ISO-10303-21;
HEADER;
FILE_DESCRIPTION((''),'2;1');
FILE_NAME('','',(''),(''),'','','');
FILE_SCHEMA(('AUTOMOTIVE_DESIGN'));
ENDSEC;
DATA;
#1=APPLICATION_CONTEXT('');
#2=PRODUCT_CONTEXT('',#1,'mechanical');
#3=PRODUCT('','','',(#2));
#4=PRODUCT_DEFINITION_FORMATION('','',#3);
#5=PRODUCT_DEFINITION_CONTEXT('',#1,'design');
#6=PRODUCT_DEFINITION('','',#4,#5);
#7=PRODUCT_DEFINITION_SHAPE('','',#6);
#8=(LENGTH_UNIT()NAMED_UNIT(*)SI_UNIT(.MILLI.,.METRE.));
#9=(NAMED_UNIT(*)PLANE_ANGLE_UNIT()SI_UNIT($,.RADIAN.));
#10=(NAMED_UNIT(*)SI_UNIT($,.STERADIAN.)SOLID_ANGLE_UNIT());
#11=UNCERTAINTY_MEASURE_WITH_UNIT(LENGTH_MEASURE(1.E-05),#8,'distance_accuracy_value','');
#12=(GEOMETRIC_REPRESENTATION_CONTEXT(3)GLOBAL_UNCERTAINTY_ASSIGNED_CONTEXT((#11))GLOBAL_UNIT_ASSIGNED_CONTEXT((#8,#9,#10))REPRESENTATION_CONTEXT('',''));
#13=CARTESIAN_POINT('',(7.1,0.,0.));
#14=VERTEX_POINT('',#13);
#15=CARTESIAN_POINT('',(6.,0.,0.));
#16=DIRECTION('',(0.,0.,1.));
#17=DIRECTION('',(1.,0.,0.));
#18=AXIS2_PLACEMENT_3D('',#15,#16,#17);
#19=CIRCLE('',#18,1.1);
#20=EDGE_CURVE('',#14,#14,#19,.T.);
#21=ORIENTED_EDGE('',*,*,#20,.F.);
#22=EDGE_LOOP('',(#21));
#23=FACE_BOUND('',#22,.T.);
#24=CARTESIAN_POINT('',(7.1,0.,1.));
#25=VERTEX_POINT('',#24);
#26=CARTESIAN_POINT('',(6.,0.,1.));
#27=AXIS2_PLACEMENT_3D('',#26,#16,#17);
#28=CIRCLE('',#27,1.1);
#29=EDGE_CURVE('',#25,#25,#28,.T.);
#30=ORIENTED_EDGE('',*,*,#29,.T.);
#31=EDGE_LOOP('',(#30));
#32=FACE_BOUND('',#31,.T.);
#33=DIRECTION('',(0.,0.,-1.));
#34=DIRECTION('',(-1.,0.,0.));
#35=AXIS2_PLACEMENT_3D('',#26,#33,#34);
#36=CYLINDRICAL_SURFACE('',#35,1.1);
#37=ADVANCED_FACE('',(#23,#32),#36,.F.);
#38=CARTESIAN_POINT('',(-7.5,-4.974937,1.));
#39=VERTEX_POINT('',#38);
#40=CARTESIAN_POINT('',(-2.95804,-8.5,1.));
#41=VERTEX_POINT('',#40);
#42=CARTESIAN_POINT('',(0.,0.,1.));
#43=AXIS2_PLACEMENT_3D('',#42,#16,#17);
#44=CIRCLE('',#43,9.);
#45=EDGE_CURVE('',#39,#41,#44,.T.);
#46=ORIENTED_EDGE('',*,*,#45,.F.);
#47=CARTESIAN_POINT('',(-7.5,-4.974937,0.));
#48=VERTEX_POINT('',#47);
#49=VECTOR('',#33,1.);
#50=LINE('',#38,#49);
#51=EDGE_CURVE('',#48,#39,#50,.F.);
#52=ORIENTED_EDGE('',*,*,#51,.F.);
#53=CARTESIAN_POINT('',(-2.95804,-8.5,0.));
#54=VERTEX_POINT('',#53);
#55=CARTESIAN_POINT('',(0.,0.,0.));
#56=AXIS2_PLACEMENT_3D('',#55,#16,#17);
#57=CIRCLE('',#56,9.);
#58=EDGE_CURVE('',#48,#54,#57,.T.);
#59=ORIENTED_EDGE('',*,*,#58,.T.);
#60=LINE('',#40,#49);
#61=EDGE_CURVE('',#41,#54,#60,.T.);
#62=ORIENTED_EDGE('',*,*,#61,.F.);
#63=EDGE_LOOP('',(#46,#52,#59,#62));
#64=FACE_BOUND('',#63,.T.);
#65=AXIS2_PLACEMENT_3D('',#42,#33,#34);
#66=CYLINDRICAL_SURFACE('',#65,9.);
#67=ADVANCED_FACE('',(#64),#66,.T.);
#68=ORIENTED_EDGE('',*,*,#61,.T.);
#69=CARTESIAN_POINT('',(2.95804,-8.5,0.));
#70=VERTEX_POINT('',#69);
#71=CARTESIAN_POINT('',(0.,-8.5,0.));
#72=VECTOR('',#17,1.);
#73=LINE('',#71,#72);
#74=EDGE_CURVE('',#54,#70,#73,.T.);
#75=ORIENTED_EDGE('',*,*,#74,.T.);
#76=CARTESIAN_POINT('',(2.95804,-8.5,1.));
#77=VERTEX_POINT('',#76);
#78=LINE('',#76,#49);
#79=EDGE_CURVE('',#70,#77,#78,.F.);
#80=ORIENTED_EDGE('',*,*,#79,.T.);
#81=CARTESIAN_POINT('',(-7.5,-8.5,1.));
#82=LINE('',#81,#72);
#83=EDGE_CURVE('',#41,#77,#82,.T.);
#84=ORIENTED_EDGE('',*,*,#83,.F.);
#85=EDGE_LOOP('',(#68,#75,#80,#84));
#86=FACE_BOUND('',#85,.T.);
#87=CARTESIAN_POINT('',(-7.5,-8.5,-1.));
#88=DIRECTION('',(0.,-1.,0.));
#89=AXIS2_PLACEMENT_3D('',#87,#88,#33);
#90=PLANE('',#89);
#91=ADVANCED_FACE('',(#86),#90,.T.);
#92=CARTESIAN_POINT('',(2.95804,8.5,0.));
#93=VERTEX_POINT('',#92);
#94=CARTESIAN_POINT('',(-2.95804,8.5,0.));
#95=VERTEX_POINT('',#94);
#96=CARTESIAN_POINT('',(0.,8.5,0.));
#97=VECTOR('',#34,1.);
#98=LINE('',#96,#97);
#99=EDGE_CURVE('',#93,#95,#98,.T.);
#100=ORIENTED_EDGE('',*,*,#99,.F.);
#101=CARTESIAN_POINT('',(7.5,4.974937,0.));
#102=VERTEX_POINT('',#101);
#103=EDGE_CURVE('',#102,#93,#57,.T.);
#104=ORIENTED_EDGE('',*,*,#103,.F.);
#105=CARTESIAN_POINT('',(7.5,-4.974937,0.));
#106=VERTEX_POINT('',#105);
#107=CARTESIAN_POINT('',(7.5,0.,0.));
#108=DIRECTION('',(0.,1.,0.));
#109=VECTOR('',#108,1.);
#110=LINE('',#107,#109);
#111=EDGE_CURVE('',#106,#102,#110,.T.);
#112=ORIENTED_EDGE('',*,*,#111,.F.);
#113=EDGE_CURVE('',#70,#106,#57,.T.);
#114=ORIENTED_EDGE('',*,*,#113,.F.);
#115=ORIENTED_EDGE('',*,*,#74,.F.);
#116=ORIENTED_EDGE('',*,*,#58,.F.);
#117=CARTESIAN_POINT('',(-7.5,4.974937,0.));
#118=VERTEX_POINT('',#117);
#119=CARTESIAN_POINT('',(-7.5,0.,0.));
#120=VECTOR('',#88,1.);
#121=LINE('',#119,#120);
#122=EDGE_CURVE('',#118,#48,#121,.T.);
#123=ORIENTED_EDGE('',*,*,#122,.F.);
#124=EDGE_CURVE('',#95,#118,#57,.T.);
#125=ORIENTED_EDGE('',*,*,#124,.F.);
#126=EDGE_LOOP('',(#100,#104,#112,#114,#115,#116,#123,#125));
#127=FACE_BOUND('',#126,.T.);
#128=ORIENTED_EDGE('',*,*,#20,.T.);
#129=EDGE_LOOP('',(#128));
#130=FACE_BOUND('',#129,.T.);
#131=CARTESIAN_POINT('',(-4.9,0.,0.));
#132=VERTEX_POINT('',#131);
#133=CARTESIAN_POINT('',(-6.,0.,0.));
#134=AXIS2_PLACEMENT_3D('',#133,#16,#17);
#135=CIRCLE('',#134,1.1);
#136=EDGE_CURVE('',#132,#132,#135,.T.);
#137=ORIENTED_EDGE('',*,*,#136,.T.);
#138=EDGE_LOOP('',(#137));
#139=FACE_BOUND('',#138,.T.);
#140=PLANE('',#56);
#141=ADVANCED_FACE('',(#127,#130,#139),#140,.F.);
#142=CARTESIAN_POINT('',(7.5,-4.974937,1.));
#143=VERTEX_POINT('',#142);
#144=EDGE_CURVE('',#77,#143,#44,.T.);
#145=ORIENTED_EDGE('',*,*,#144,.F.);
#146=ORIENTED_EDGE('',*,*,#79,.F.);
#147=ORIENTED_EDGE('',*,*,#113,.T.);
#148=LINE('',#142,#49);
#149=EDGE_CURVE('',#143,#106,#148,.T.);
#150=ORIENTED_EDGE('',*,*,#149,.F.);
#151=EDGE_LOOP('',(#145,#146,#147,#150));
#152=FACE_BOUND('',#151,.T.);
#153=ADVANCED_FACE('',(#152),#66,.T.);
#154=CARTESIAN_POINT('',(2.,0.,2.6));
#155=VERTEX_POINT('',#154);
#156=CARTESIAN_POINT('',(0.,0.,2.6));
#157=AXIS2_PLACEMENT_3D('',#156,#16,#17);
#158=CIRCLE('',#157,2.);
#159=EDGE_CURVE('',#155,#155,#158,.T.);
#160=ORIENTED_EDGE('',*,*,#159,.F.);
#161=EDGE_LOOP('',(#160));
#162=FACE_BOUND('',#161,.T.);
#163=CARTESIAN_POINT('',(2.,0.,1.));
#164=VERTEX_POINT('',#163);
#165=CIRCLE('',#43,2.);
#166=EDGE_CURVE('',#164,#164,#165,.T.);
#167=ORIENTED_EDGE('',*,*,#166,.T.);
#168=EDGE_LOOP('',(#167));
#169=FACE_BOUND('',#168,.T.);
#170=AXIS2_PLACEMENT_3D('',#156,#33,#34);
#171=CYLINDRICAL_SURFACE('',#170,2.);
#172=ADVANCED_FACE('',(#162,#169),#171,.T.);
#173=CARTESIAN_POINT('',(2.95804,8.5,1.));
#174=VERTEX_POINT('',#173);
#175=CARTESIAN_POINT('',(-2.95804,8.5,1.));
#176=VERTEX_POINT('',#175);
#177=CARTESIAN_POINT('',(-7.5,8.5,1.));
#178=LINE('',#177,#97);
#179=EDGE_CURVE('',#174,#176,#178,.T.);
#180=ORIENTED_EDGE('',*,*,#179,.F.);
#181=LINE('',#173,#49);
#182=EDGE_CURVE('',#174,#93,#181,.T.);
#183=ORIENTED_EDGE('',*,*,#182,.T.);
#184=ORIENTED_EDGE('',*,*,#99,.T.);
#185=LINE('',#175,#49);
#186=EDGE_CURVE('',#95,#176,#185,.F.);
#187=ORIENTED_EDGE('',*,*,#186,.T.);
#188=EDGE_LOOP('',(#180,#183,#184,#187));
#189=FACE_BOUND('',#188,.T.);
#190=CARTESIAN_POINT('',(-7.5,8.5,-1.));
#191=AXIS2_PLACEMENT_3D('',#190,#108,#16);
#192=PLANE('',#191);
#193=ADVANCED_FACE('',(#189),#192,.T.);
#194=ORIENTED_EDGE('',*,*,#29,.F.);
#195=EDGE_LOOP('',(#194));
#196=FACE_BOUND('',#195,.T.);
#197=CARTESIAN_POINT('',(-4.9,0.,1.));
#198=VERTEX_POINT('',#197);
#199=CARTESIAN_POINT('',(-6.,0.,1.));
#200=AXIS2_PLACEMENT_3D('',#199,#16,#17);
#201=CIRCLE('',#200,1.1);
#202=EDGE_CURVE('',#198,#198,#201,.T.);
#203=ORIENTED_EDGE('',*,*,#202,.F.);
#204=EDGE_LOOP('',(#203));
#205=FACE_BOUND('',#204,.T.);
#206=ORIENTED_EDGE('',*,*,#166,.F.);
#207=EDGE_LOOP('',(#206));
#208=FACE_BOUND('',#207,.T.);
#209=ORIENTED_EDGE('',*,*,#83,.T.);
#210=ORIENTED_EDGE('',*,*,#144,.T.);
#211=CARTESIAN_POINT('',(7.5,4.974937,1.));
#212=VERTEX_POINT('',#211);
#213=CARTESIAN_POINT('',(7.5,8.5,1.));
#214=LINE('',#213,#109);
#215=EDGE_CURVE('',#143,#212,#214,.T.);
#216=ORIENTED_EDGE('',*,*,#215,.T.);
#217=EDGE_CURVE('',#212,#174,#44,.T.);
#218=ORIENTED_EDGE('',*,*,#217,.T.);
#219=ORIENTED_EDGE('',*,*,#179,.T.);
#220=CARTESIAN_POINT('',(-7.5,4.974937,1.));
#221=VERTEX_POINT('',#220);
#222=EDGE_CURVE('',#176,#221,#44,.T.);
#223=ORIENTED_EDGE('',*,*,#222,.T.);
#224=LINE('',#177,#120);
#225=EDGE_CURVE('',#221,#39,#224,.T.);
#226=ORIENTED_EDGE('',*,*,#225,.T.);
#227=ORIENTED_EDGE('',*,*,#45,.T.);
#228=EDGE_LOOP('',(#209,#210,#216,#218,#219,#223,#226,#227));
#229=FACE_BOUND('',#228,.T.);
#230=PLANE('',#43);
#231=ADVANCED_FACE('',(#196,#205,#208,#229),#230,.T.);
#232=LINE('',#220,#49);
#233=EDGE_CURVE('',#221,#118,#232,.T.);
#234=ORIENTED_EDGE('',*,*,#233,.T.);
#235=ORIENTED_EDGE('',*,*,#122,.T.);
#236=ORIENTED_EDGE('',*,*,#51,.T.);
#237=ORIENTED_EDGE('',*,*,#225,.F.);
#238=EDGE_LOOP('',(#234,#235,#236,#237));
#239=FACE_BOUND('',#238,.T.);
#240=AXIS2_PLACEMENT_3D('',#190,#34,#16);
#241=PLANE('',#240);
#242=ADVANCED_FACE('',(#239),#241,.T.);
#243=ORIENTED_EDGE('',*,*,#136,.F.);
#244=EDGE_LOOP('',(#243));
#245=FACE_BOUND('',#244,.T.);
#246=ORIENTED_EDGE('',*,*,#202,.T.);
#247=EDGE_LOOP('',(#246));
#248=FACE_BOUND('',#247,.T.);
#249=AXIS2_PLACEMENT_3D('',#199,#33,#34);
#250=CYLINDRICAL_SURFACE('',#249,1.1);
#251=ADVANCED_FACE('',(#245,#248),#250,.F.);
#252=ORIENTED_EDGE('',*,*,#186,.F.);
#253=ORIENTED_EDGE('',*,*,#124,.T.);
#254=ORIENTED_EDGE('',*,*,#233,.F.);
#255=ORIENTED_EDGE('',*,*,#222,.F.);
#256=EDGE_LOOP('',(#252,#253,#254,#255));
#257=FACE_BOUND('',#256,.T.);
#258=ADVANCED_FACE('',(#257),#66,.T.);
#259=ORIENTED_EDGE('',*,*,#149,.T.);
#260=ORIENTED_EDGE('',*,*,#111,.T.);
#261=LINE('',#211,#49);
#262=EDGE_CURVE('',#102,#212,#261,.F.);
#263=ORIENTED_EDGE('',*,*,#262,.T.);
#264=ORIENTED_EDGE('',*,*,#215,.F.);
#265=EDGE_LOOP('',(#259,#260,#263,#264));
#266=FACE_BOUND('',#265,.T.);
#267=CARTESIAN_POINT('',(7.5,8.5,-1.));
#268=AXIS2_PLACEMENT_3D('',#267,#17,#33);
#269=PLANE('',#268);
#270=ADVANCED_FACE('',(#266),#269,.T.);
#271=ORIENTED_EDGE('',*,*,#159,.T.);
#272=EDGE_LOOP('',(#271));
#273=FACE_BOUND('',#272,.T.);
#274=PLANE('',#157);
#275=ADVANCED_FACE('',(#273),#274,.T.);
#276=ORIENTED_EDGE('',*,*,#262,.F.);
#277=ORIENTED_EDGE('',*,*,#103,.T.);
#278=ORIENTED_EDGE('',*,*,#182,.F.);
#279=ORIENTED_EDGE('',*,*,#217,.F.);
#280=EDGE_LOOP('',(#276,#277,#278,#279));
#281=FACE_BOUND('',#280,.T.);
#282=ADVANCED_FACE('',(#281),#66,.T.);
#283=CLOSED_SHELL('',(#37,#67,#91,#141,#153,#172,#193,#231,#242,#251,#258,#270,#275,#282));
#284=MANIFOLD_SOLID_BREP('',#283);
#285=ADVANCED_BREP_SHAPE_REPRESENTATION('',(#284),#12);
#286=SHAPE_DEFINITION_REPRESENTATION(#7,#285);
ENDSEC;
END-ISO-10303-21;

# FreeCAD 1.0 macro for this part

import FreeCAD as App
import Part
import Sketcher


def add_polygon(sketch, points):
    """Adds a closed chain of lines whose ends are joined by coincident constraints."""
    first, n = sketch.GeometryCount, len(points)
    for a, b in zip(points, points[1:] + points[:1]):
        sketch.addGeometry(Part.LineSegment(App.Vector(*a, 0), App.Vector(*b, 0)), False)
    for i in range(n):
        sketch.addConstraint(Sketcher.Constraint("Coincident", first + i, 2, first + (i + 1) % n, 1))

doc = App.newDocument("Part")
params = doc.addObject("Spreadsheet::Sheet", "Params")
for row, (alias, value) in enumerate([
    ("sketch1_diameter", "18 mm"),
    ("sketch1_diameter2", "2.2 mm"),
    ("pad1_length", "1 mm"),
    ("sketch2_width", "15 mm"),
    ("sketch2_height", "17 mm"),
    ("pocket1_length", "2 mm"),
    ("sketch3_diameter", "4 mm"),
    ("pad2_length", "1.6 mm"),
], start=1):
    params.set(f"A{row}", alias)
    params.set(f"B{row}", "=" + value)
    params.setAlias(f"B{row}", alias)

body = doc.addObject("PartDesign::Body", "Body")

# Sketch on XY plane
sketch1 = body.newObject("Sketcher::SketchObject", "Sketch")
sketch1.AttachmentSupport = (doc.getObject("XY_Plane"), [""])
sketch1.MapMode = "FlatFace"
sketch1.addGeometry([
    Part.Circle(App.Vector(0, 0, 0), App.Vector(0, 0, 1), 9),
    Part.Circle(App.Vector(-6, 0, 0), App.Vector(0, 0, 1), 1.1),
    Part.Circle(App.Vector(6, 0, 0), App.Vector(0, 0, 1), 1.1),
], False)
sketch1.addConstraint([
    Sketcher.Constraint("Coincident", 0, 3, -1, 1),
    Sketcher.Constraint("Equal", 1, 2),
    Sketcher.Constraint("Symmetric", 1, 3, 2, 3, -1, 1),
    Sketcher.Constraint("PointOnObject", 1, 3, -1),
    Sketcher.Constraint("Diameter", 0, 18.0),
    Sketcher.Constraint("Diameter", 1, 2.2),
    Sketcher.Constraint("DistanceX", 1, 3, -1, 1, 6.0),
])
sketch1.setExpression("Constraints[4]", "Params.sketch1_diameter")
sketch1.setExpression("Constraints[5]", "Params.sketch1_diameter2")
pad1 = body.newObject("PartDesign::Pad", "Pad")
pad1.Profile = sketch1
pad1.setExpression("Length", "Params.pad1_length")

# Sketch on XY plane
sketch2 = body.newObject("Sketcher::SketchObject", "Sketch001")
sketch2.AttachmentSupport = (doc.getObject("XY_Plane"), [""])
sketch2.MapMode = "FlatFace"
sketch2.AttachmentOffset = App.Placement(App.Vector(0, 0, 1), App.Rotation())
add_polygon(sketch2, [(-16, 13), (-16, -13), (16, -13), (16, 13)])  # lines 0-3
add_polygon(sketch2, [(8, -8), (-8, -8), (-8, 8), (8, 8)])  # lines 4-7
sketch2.addConstraint([
    Sketcher.Constraint("Vertical", 0),
    Sketcher.Constraint("Horizontal", 1),
    Sketcher.Constraint("Vertical", 2),
    Sketcher.Constraint("Horizontal", 3),
    Sketcher.Constraint("Horizontal", 4),
    Sketcher.Constraint("Vertical", 5),
    Sketcher.Constraint("Horizontal", 6),
    Sketcher.Constraint("Vertical", 7),
    Sketcher.Constraint("Symmetric", 0, 2, 2, 2, -1, 1),
    Sketcher.Constraint("Symmetric", 4, 2, 6, 2, -1, 1),
    Sketcher.Constraint("DistanceX", 4, 2, 4, 1, 15.0),
    Sketcher.Constraint("DistanceY", 5, 1, 5, 2, 17.0),
    Sketcher.Constraint("DistanceX", 1, 1, 1, 2, 32.389432),
    Sketcher.Constraint("DistanceY", 0, 2, 0, 1, 26.120675),
])
sketch2.setExpression("Constraints[18]", "Params.sketch2_width")
sketch2.setExpression("Constraints[19]", "Params.sketch2_height")
pocket1 = body.newObject("PartDesign::Pocket", "Pocket")
pocket1.Profile = sketch2
pocket1.setExpression("Length", "Params.pocket1_length")

# Sketch on XY plane
sketch3 = body.newObject("Sketcher::SketchObject", "Sketch002")
sketch3.AttachmentSupport = (doc.getObject("XY_Plane"), [""])
sketch3.MapMode = "FlatFace"
sketch3.AttachmentOffset = App.Placement(App.Vector(0, 0, 1), App.Rotation())
sketch3.addGeometry(Part.Circle(App.Vector(0, 0, 0), App.Vector(0, 0, 1), 2), False)
sketch3.addConstraint([
    Sketcher.Constraint("Coincident", 0, 3, -1, 1),
    Sketcher.Constraint("Diameter", 0, 4.0),
])
sketch3.setExpression("Constraints[1]", "Params.sketch3_diameter")
pad2 = body.newObject("PartDesign::Pad", "Pad001")
pad2.Profile = sketch3
pad2.setExpression("Length", "Params.pad2_length")

doc.recompute()
